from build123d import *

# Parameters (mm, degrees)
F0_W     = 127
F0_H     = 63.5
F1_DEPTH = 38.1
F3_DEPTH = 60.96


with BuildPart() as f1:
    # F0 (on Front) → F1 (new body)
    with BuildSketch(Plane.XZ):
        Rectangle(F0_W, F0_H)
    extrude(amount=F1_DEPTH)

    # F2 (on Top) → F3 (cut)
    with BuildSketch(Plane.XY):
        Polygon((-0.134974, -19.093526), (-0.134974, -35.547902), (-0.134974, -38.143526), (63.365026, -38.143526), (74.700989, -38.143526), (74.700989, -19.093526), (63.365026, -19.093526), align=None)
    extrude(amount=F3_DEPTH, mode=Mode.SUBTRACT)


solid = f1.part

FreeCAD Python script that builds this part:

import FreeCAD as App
import Part
import Sketcher

V = App.Vector
Q = App.Units.Quantity

doc = App.newDocument("Part")
body = doc.addObject("PartDesign::Body", "Body")

# Sketch on XZ plane
sketch1 = body.newObject("Sketcher::SketchObject", "Sketch")
sketch1.AttachmentSupport = (doc.getObject("XZ_Plane"), [""])
sketch1.MapMode = "FlatFace"
sketch1.addGeometry(Part.LineSegment(V(-63.5, 31.75, 0), V(-63.5, -31.75, 0)), False)
sketch1.addGeometry(Part.LineSegment(V(-63.5, -31.75, 0), V(63.5, -31.75, 0)), False)
sketch1.addGeometry(Part.LineSegment(V(63.5, -31.75, 0), V(63.5, 31.75, 0)), False)
sketch1.addGeometry(Part.LineSegment(V(63.5, 31.75, 0), V(-63.5, 31.75, 0)), False)
sketch1.addConstraint(Sketcher.Constraint("Coincident", 0, 2, 1, 1))
sketch1.addConstraint(Sketcher.Constraint("Coincident", 1, 2, 2, 1))
sketch1.addConstraint(Sketcher.Constraint("Coincident", 2, 2, 3, 1))
sketch1.addConstraint(Sketcher.Constraint("Coincident", 3, 2, 0, 1))
sketch1.addConstraint(Sketcher.Constraint("Vertical", 0))
sketch1.addConstraint(Sketcher.Constraint("Horizontal", 1))
sketch1.addConstraint(Sketcher.Constraint("Vertical", 2))
sketch1.addConstraint(Sketcher.Constraint("Horizontal", 3))
sketch1.addConstraint(Sketcher.Constraint("Symmetric", 0, 2, 2, 2, -1, 1))
sketch1.addConstraint(Sketcher.Constraint("DistanceX", 1, 1, 1, 2, Q("5 in")))
sketch1.addConstraint(Sketcher.Constraint("DistanceY", 0, 2, 0, 1, Q("2.5 in")))
pad1 = body.newObject("PartDesign::Pad", "Pad")
pad1.Profile = sketch1
pad1.Length = Q("1.5 in")

# Sketch on XY plane
sketch2 = body.newObject("Sketcher::SketchObject", "Sketch001")
sketch2.AttachmentSupport = (doc.getObject("XY_Plane"), [""])
sketch2.MapMode = "FlatFace"
sketch2.addGeometry(Part.LineSegment(V(-0.134974, -19.093526, 0), V(-0.134974, -38.143526, 0)), False)
sketch2.addGeometry(Part.LineSegment(V(-0.134974, -38.143526, 0), V(74.700989, -38.143526, 0)), False)
sketch2.addGeometry(Part.LineSegment(V(74.700989, -38.143526, 0), V(74.700989, -19.093526, 0)), False)
sketch2.addGeometry(Part.LineSegment(V(74.700989, -19.093526, 0), V(-0.134974, -19.093526, 0)), False)
sketch2.addConstraint(Sketcher.Constraint("Coincident", 0, 2, 1, 1))
sketch2.addConstraint(Sketcher.Constraint("Coincident", 1, 2, 2, 1))
sketch2.addConstraint(Sketcher.Constraint("Coincident", 2, 2, 3, 1))
sketch2.addConstraint(Sketcher.Constraint("Coincident", 3, 2, 0, 1))
sketch2.addConstraint(Sketcher.Constraint("Vertical", 0))
sketch2.addConstraint(Sketcher.Constraint("Horizontal", 1))
sketch2.addConstraint(Sketcher.Constraint("Vertical", 2))
sketch2.addConstraint(Sketcher.Constraint("Horizontal", 3))
sketch2.addConstraint(Sketcher.Constraint("DistanceY", 0, 2, 0, 1, Q("0.75 in")))
sketch2.addConstraint(Sketcher.Constraint("DistanceX", 1, 1, 1, 2, 74.835963))
sketch2.addConstraint(Sketcher.Constraint("DistanceX", -1, 1, 1, 2, 74.700989))
sketch2.addConstraint(Sketcher.Constraint("DistanceY", 0, 2, -1, 1, 38.143526))
pocket1 = body.newObject("PartDesign::Pocket", "Pocket")
pocket1.Profile = sketch2
pocket1.Length = Q("2.4 in")
pocket1.Reversed = True

doc.recompute()
